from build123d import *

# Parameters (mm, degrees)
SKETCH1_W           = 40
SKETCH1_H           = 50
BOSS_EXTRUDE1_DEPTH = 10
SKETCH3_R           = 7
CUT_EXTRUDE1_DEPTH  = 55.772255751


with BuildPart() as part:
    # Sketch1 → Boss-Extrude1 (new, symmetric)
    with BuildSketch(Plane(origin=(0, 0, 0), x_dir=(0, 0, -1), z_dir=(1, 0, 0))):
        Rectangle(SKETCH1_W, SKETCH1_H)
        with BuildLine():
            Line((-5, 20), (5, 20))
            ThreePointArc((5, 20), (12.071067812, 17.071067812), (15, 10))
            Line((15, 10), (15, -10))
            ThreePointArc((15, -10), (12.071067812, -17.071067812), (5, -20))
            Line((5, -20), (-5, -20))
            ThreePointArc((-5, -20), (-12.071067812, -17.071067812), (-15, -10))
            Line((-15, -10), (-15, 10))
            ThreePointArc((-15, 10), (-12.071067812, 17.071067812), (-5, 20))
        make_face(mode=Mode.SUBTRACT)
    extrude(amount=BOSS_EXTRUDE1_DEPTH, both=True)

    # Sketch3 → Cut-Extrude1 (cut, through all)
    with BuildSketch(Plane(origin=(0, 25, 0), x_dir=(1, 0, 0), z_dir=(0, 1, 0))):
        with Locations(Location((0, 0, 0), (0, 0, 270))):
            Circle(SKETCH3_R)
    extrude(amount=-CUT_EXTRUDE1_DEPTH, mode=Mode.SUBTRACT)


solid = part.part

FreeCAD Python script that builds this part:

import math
import FreeCAD as App
import Part
import Sketcher

V = App.Vector


def add_polygon(sketch, points):
    """Adds a closed chain of lines whose ends are joined by coincident constraints."""
    first, n = sketch.GeometryCount, len(points)
    for a, b in zip(points, points[1:] + points[:1]):
        sketch.addGeometry(Part.LineSegment(App.Vector(*a, 0), App.Vector(*b, 0)), False)
    for i in range(n):
        sketch.addConstraint(Sketcher.Constraint("Coincident", first + i, 2, first + (i + 1) % n, 1))

doc = App.newDocument("Part")
body = doc.addObject("PartDesign::Body", "Body")

sketch1 = body.newObject("Sketcher::SketchObject", "Sketch")
sketch1.AttachmentSupport = (doc.getObject("YZ_Plane"), [""])
sketch1.MapMode = "FlatFace"
add_polygon(sketch1, [(25, 20), (-25, 20), (-25, -20), (25, -20)])
sketch1.addGeometry(Part.ArcOfCircle(Part.Circle(V(10, 5, 0), V(0, 0, 1), 10), math.radians(0), math.radians(90)), False)
sketch1.addGeometry(Part.LineSegment(V(20, 5, 0), V(20, -5, 0)), False)
sketch1.addGeometry(Part.ArcOfCircle(Part.Circle(V(10, -5, 0), V(0, 0, 1), 10), math.radians(-90), math.radians(0)), False)
sketch1.addGeometry(Part.LineSegment(V(10, -15, 0), V(-10, -15, 0)), False)
sketch1.addGeometry(Part.ArcOfCircle(Part.Circle(V(-10, -5, 0), V(0, 0, 1), 10), math.radians(180), math.radians(270)), False)
sketch1.addGeometry(Part.LineSegment(V(-20, -5, 0), V(-20, 5, 0)), False)
sketch1.addGeometry(Part.ArcOfCircle(Part.Circle(V(-10, 5, 0), V(0, 0, 1), 10), math.radians(90), math.radians(180)), False)
sketch1.addGeometry(Part.LineSegment(V(-10, 15, 0), V(10, 15, 0)), False)
sketch1.addConstraint([
    Sketcher.Constraint("Tangent", 4, 1, 5, 1),
    Sketcher.Constraint("Tangent", 5, 2, 6, 2),
    Sketcher.Constraint("Tangent", 6, 1, 7, 1),
    Sketcher.Constraint("Tangent", 7, 2, 8, 2),
    Sketcher.Constraint("Tangent", 8, 1, 9, 1),
    Sketcher.Constraint("Tangent", 9, 2, 10, 2),
    Sketcher.Constraint("Tangent", 10, 1, 11, 1),
    Sketcher.Constraint("Tangent", 11, 2, 4, 2),
    Sketcher.Constraint("Horizontal", 0),
    Sketcher.Constraint("Vertical", 1),
    Sketcher.Constraint("Horizontal", 2),
    Sketcher.Constraint("Vertical", 3),
    Sketcher.Constraint("Vertical", 5),
    Sketcher.Constraint("Horizontal", 7),
    Sketcher.Constraint("Vertical", 9),
    Sketcher.Constraint("Horizontal", 11),
    Sketcher.Constraint("Equal", 4, 6),
    Sketcher.Constraint("Equal", 6, 8),
    Sketcher.Constraint("Equal", 8, 10),
    Sketcher.Constraint("Symmetric", 4, 3, 8, 3, -1, 1),
    Sketcher.Constraint("Symmetric", 0, 2, 2, 2, -1, 1),
    Sketcher.Constraint("Radius", 4, 10.0),
    Sketcher.Constraint("DistanceX", 0, 2, 0, 1, 50.0),
    Sketcher.Constraint("DistanceX", 7, 2, 7, 1, 20.0),
    Sketcher.Constraint("DistanceY", 1, 2, 1, 1, 40.0),
    Sketcher.Constraint("DistanceY", 5, 2, 5, 1, 10.0),
])
pad1 = body.newObject("PartDesign::Pad", "Pad")
pad1.Profile = sketch1
pad1.Length = 20
pad1.Midplane = True

sketch2 = body.newObject("Sketcher::SketchObject", "Sketch001")
sketch2.AttachmentSupport = (doc.getObject("XZ_Plane"), [""])
sketch2.MapMode = "FlatFace"
sketch2.AttachmentOffset = App.Placement(V(0, 0, -25), App.Rotation())
sketch2.addGeometry(Part.Circle(V(0, 0, 0), V(0, 0, 1), 7), False)
sketch2.addConstraint([
    Sketcher.Constraint("Coincident", 0, 3, -1, 1),
    Sketcher.Constraint("Diameter", 0, 14.0),
])
pocket1 = body.newObject("PartDesign::Pocket", "Pocket")
pocket1.Profile = sketch2
pocket1.Type = "ThroughAll"
pocket1.Reversed = True

doc.recompute()
